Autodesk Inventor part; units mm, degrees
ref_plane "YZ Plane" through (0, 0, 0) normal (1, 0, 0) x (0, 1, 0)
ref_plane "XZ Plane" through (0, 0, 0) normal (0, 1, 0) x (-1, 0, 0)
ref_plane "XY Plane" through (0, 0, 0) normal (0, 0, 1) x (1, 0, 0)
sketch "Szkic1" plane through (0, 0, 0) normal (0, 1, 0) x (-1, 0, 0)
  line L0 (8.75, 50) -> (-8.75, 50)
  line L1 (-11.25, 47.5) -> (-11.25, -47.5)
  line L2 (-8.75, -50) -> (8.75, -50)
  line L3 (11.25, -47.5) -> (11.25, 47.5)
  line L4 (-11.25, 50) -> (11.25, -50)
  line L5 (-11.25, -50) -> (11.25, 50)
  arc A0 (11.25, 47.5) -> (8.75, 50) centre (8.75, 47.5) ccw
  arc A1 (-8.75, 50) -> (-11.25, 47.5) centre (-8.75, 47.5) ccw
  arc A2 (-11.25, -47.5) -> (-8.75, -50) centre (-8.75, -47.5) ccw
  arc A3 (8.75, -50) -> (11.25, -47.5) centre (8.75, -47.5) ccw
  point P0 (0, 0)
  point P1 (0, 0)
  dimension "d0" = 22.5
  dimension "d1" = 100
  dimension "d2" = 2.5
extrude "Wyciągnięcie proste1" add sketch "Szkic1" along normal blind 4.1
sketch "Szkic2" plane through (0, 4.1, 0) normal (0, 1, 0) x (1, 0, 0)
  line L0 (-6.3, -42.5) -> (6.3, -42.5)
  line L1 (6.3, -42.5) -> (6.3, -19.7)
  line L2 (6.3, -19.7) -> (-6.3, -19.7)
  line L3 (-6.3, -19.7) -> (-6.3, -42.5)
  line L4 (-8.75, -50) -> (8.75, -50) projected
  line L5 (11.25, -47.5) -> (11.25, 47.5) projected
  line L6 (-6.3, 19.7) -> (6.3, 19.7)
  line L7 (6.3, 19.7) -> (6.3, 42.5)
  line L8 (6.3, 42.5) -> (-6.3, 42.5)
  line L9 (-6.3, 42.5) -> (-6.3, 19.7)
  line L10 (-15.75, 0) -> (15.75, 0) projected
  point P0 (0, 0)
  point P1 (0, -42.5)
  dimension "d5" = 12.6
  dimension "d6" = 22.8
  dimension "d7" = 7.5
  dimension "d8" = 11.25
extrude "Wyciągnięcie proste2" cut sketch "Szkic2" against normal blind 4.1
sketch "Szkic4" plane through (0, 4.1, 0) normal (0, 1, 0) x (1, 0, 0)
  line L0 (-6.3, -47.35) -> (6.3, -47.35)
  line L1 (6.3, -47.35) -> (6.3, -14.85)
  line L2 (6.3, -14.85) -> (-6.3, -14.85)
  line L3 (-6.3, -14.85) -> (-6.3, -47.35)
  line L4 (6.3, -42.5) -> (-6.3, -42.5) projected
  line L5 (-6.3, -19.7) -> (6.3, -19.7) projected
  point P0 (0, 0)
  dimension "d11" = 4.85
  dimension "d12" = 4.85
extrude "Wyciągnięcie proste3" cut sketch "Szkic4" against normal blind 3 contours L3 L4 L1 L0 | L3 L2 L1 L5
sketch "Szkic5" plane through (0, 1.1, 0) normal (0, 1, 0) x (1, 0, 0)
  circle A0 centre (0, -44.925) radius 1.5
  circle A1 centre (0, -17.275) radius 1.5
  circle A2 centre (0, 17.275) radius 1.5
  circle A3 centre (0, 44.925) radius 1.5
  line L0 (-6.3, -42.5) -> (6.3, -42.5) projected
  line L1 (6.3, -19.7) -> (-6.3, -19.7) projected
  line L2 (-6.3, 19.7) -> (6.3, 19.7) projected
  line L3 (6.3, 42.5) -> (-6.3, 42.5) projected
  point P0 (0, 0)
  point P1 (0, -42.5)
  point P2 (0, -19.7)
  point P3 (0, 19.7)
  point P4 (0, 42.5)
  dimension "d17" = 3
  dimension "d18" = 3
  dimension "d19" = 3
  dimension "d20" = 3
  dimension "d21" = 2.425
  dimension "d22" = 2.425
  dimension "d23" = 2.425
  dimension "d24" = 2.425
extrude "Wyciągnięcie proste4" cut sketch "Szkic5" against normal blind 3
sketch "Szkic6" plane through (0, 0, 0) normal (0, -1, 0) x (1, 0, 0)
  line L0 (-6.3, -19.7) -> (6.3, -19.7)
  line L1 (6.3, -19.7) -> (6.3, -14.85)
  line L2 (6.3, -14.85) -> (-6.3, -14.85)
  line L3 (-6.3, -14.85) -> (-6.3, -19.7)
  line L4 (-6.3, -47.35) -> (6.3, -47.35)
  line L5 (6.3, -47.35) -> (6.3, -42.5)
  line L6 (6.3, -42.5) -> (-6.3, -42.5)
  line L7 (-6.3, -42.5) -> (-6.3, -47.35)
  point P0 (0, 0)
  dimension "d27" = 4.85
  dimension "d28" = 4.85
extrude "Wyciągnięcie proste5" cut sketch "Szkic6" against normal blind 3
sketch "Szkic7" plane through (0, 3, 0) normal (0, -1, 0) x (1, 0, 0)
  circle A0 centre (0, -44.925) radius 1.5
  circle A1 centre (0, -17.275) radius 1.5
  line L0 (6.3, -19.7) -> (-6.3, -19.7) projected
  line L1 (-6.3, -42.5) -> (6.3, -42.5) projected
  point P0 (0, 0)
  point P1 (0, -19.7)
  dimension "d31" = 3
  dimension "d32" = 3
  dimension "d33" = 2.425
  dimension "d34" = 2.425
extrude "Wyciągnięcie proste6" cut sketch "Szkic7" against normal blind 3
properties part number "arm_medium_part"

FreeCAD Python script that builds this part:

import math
import FreeCAD as App
import Part
import Sketcher

V = App.Vector

doc = App.newDocument("Part")
params = doc.addObject("Spreadsheet::Sheet", "Params")
for row, (alias, value) in enumerate([
    ("sketch1_radius", "2.5 mm"),
    ("sketch1_height", "95 mm"),
    ("pad1_length", "4.1 mm"),
    ("sketch2_width", "12.6 mm"),
    ("sketch2_height", "22.8 mm"),
    ("pocket1_length", "4.1 mm"),
    ("sketch3_height", "4.85 mm"),
    ("sketch3_width", "12.6 mm"),
    ("pocket2_length", "3 mm"),
    ("sketch4_diameter", "3 mm"),
    ("pocket3_length", "3 mm"),
    ("sketch5_height", "4.85 mm"),
    ("sketch5_width", "12.6 mm"),
    ("pocket4_length", "3 mm"),
    ("sketch6_diameter", "3 mm"),
    ("pocket5_length", "3 mm"),
], start=1):
    params.set(f"A{row}", alias)
    params.set(f"B{row}", "=" + value)
    params.setAlias(f"B{row}", alias)

body = doc.addObject("PartDesign::Body", "Body")

# Sketch on XZ plane
sketch1 = body.newObject("Sketcher::SketchObject", "Sketch")
sketch1.AttachmentSupport = (doc.getObject("XZ_Plane"), [""])
sketch1.MapMode = "FlatFace"
sketch1.addGeometry([
    Part.LineSegment(V(-8.75, 50, 0), V(8.75, 50, 0)),  # 0
    Part.ArcOfCircle(Part.Circle(V(8.75, 47.5, 0), V(0, 0, 1), 2.5), math.radians(0), math.radians(90)),  # 1
    Part.LineSegment(V(11.25, 47.5, 0), V(11.25, -47.5, 0)),  # 2
    Part.ArcOfCircle(Part.Circle(V(8.75, -47.5, 0), V(0, 0, 1), 2.5), math.radians(-90), math.radians(0)),  # 3
    Part.LineSegment(V(8.75, -50, 0), V(-8.75, -50, 0)),  # 4
    Part.ArcOfCircle(Part.Circle(V(-8.75, -47.5, 0), V(0, 0, 1), 2.5), math.radians(180), math.radians(270)),  # 5
    Part.LineSegment(V(-11.25, -47.5, 0), V(-11.25, 47.5, 0)),  # 6
    Part.ArcOfCircle(Part.Circle(V(-8.75, 47.5, 0), V(0, 0, 1), 2.5), math.radians(90), math.radians(180)),  # 7
], False)
sketch1.addConstraint([
    Sketcher.Constraint("Tangent", 0, 2, 1, 2),
    Sketcher.Constraint("Tangent", 1, 1, 2, 1),
    Sketcher.Constraint("Tangent", 2, 2, 3, 2),
    Sketcher.Constraint("Tangent", 3, 1, 4, 1),
    Sketcher.Constraint("Tangent", 4, 2, 5, 2),
    Sketcher.Constraint("Tangent", 5, 1, 6, 1),
    Sketcher.Constraint("Tangent", 6, 2, 7, 2),
    Sketcher.Constraint("Tangent", 7, 1, 0, 1),
    Sketcher.Constraint("Horizontal", 0),
    Sketcher.Constraint("Vertical", 2),
    Sketcher.Constraint("Horizontal", 4),
    Sketcher.Constraint("Vertical", 6),
    Sketcher.Constraint("Equal", 1, 3),
    Sketcher.Constraint("Equal", 3, 5),
    Sketcher.Constraint("Equal", 5, 7),
    Sketcher.Constraint("Symmetric", 1, 3, 5, 3, -1, 1),
    Sketcher.Constraint("Radius", 1, 2.5),
    Sketcher.Constraint("DistanceX", 5, 1, 2, 2, 22.5),
    Sketcher.Constraint("DistanceY", 2, 2, 2, 1, 95.0),
])
sketch1.setExpression("Constraints[16]", "Params.sketch1_radius")
sketch1.setExpression("Constraints[18]", "Params.sketch1_height")
pad1 = body.newObject("PartDesign::Pad", "Pad")
pad1.Profile = sketch1
pad1.setExpression("Length", "Params.pad1_length")
pad1.Reversed = True

# Sketch on XZ plane
sketch2 = body.newObject("Sketcher::SketchObject", "Sketch001")
sketch2.AttachmentSupport = (doc.getObject("XZ_Plane"), [""])
sketch2.MapMode = "FlatFace"
sketch2.AttachmentOffset = App.Placement(V(0, 0, -4.1), App.Rotation())
sketch2.addGeometry([
    Part.LineSegment(V(-6.3, 19.7, 0), V(-6.3, 42.5, 0)),  # 0
    Part.LineSegment(V(-6.3, 42.5, 0), V(6.3, 42.5, 0)),  # 1
    Part.LineSegment(V(6.3, 42.5, 0), V(6.3, 19.7, 0)),  # 2
    Part.LineSegment(V(6.3, 19.7, 0), V(-6.3, 19.7, 0)),  # 3
    Part.LineSegment(V(-6.3, -42.5, 0), V(-6.3, -19.7, 0)),  # 4
    Part.LineSegment(V(-6.3, -19.7, 0), V(6.3, -19.7, 0)),  # 5
    Part.LineSegment(V(6.3, -19.7, 0), V(6.3, -42.5, 0)),  # 6
    Part.LineSegment(V(6.3, -42.5, 0), V(-6.3, -42.5, 0)),  # 7
], False)
sketch2.addConstraint([
    Sketcher.Constraint("Coincident", 0, 2, 1, 1),
    Sketcher.Constraint("Coincident", 1, 2, 2, 1),
    Sketcher.Constraint("Coincident", 2, 2, 3, 1),
    Sketcher.Constraint("Coincident", 3, 2, 0, 1),
    Sketcher.Constraint("Coincident", 4, 2, 5, 1),
    Sketcher.Constraint("Coincident", 5, 2, 6, 1),
    Sketcher.Constraint("Coincident", 6, 2, 7, 1),
    Sketcher.Constraint("Coincident", 7, 2, 4, 1),
    Sketcher.Constraint("Vertical", 0),
    Sketcher.Constraint("Horizontal", 1),
    Sketcher.Constraint("Vertical", 2),
    Sketcher.Constraint("Horizontal", 3),
    Sketcher.Constraint("Vertical", 4),
    Sketcher.Constraint("Horizontal", 5),
    Sketcher.Constraint("Vertical", 6),
    Sketcher.Constraint("Horizontal", 7),
    Sketcher.Constraint("Symmetric", 2, 2, 4, 2, -1, 1),
    Sketcher.Constraint("Symmetric", 0, 2, 6, 2, -1, 1),
    Sketcher.Constraint("Vertical", 3, 2, 4, 2),
    Sketcher.Constraint("DistanceX", 1, 1, 1, 2, 12.6),
    Sketcher.Constraint("DistanceY", 0, 1, 0, 2, 22.8),
    Sketcher.Constraint("DistanceY", 6, 2, 1, 2, 85.0),
])
sketch2.setExpression("Constraints[19]", "Params.sketch2_width")
sketch2.setExpression("Constraints[20]", "Params.sketch2_height")
pocket1 = body.newObject("PartDesign::Pocket", "Pocket")
pocket1.Profile = sketch2
pocket1.setExpression("Length", "Params.pocket1_length")
pocket1.Reversed = True

# Sketch on XZ plane
sketch3 = body.newObject("Sketcher::SketchObject", "Sketch002")
sketch3.AttachmentSupport = (doc.getObject("XZ_Plane"), [""])
sketch3.MapMode = "FlatFace"
sketch3.AttachmentOffset = App.Placement(V(0, 0, -4.1), App.Rotation())
sketch3.addGeometry([
    Part.LineSegment(V(-6.3, 42.5, 0), V(-6.3, 47.35, 0)),  # 0
    Part.LineSegment(V(-6.3, 47.35, 0), V(6.3, 47.35, 0)),  # 1
    Part.LineSegment(V(6.3, 47.35, 0), V(6.3, 42.5, 0)),  # 2
    Part.LineSegment(V(6.3, 42.5, 0), V(-6.3, 42.5, 0)),  # 3
    Part.LineSegment(V(-6.3, 14.85, 0), V(-6.3, 19.7, 0)),  # 4
    Part.LineSegment(V(-6.3, 19.7, 0), V(6.3, 19.7, 0)),  # 5
    Part.LineSegment(V(6.3, 19.7, 0), V(6.3, 14.85, 0)),  # 6
    Part.LineSegment(V(6.3, 14.85, 0), V(-6.3, 14.85, 0)),  # 7
], False)
sketch3.addConstraint([
    Sketcher.Constraint("Coincident", 0, 2, 1, 1),
    Sketcher.Constraint("Coincident", 1, 2, 2, 1),
    Sketcher.Constraint("Coincident", 2, 2, 3, 1),
    Sketcher.Constraint("Coincident", 3, 2, 0, 1),
    Sketcher.Constraint("Coincident", 4, 2, 5, 1),
    Sketcher.Constraint("Coincident", 5, 2, 6, 1),
    Sketcher.Constraint("Coincident", 6, 2, 7, 1),
    Sketcher.Constraint("Coincident", 7, 2, 4, 1),
    Sketcher.Constraint("Vertical", 0),
    Sketcher.Constraint("Horizontal", 1),
    Sketcher.Constraint("Vertical", 2),
    Sketcher.Constraint("Horizontal", 3),
    Sketcher.Constraint("Vertical", 4),
    Sketcher.Constraint("Horizontal", 5),
    Sketcher.Constraint("Vertical", 6),
    Sketcher.Constraint("Horizontal", 7),
    Sketcher.Constraint("Vertical", 3, 2, 4, 2),
    Sketcher.Constraint("Vertical", 2, 2, 5, 2),
    Sketcher.Constraint("Equal", 2, 4),
    Sketcher.Constraint("DistanceY", 0, 1, 0, 2, 4.85),
    Sketcher.Constraint("DistanceX", 1, 1, 1, 2, 12.6),
    Sketcher.Constraint("DistanceX", 0, 2, -1, 1, 6.3),
    Sketcher.Constraint("DistanceY", -1, 1, 2, 2, 42.5),
    Sketcher.Constraint("DistanceY", -1, 1, 4, 2, 19.7),
])
sketch3.setExpression("Constraints[19]", "Params.sketch3_height")
sketch3.setExpression("Constraints[20]", "Params.sketch3_width")
pocket2 = body.newObject("PartDesign::Pocket", "Pocket001")
pocket2.Profile = sketch3
pocket2.setExpression("Length", "Params.pocket2_length")
pocket2.Reversed = True

# Sketch on XZ plane
sketch4 = body.newObject("Sketcher::SketchObject", "Sketch003")
sketch4.AttachmentSupport = (doc.getObject("XZ_Plane"), [""])
sketch4.MapMode = "FlatFace"
sketch4.AttachmentOffset = App.Placement(V(0, 0, -1.1), App.Rotation())
sketch4.addGeometry([
    Part.Circle(V(0, 44.925, 0), V(0, 0, 1), 1.5),
    Part.Circle(V(0, 17.275, 0), V(0, 0, 1), 1.5),
    Part.Circle(V(0, -17.275, 0), V(0, 0, 1), 1.5),
    Part.Circle(V(0, -44.925, 0), V(0, 0, 1), 1.5),
], False)
sketch4.addConstraint([
    Sketcher.Constraint("Equal", 0, 1),
    Sketcher.Constraint("Equal", 1, 2),
    Sketcher.Constraint("Equal", 2, 3),
    Sketcher.Constraint("Symmetric", 1, 3, 2, 3, -1, 1),
    Sketcher.Constraint("Symmetric", 0, 3, 3, 3, -1, 1),
    Sketcher.Constraint("PointOnObject", 0, 3, -2),
    Sketcher.Constraint("PointOnObject", 1, 3, -2),
    Sketcher.Constraint("Diameter", 0, 3.0),
    Sketcher.Constraint("DistanceY", 2, 3, 0, 3, 62.2),
    Sketcher.Constraint("DistanceY", 1, 3, 0, 3, 27.65),
])
sketch4.setExpression("Constraints[7]", "Params.sketch4_diameter")
pocket3 = body.newObject("PartDesign::Pocket", "Pocket002")
pocket3.Profile = sketch4
pocket3.setExpression("Length", "Params.pocket3_length")
pocket3.Reversed = True

# Sketch on XZ plane
sketch5 = body.newObject("Sketcher::SketchObject", "Sketch004")
sketch5.AttachmentSupport = (doc.getObject("XZ_Plane"), [""])
sketch5.MapMode = "FlatFace"
sketch5.addGeometry([
    Part.LineSegment(V(-6.3, -14.85, 0), V(-6.3, -19.7, 0)),  # 0
    Part.LineSegment(V(-6.3, -19.7, 0), V(6.3, -19.7, 0)),  # 1
    Part.LineSegment(V(6.3, -19.7, 0), V(6.3, -14.85, 0)),  # 2
    Part.LineSegment(V(6.3, -14.85, 0), V(-6.3, -14.85, 0)),  # 3
    Part.LineSegment(V(-6.3, -42.5, 0), V(-6.3, -47.35, 0)),  # 4
    Part.LineSegment(V(-6.3, -47.35, 0), V(6.3, -47.35, 0)),  # 5
    Part.LineSegment(V(6.3, -47.35, 0), V(6.3, -42.5, 0)),  # 6
    Part.LineSegment(V(6.3, -42.5, 0), V(-6.3, -42.5, 0)),  # 7
], False)
sketch5.addConstraint([
    Sketcher.Constraint("Coincident", 0, 2, 1, 1),
    Sketcher.Constraint("Coincident", 1, 2, 2, 1),
    Sketcher.Constraint("Coincident", 2, 2, 3, 1),
    Sketcher.Constraint("Coincident", 3, 2, 0, 1),
    Sketcher.Constraint("Coincident", 4, 2, 5, 1),
    Sketcher.Constraint("Coincident", 5, 2, 6, 1),
    Sketcher.Constraint("Coincident", 6, 2, 7, 1),
    Sketcher.Constraint("Coincident", 7, 2, 4, 1),
    Sketcher.Constraint("Vertical", 0),
    Sketcher.Constraint("Horizontal", 1),
    Sketcher.Constraint("Vertical", 2),
    Sketcher.Constraint("Horizontal", 3),
    Sketcher.Constraint("Vertical", 4),
    Sketcher.Constraint("Horizontal", 5),
    Sketcher.Constraint("Vertical", 6),
    Sketcher.Constraint("Horizontal", 7),
    Sketcher.Constraint("Vertical", 3, 2, 4, 2),
    Sketcher.Constraint("Vertical", 2, 2, 5, 2),
    Sketcher.Constraint("Equal", 2, 4),
    Sketcher.Constraint("DistanceY", 0, 2, 0, 1, 4.85),
    Sketcher.Constraint("DistanceX", 1, 1, 1, 2, 12.6),
    Sketcher.Constraint("DistanceX", 0, 2, -1, 1, 6.3),
    Sketcher.Constraint("DistanceY", 0, 2, -1, 1, 19.7),
    Sketcher.Constraint("DistanceY", 6, 2, -1, 1, 42.5),
])
sketch5.setExpression("Constraints[19]", "Params.sketch5_height")
sketch5.setExpression("Constraints[20]", "Params.sketch5_width")
pocket4 = body.newObject("PartDesign::Pocket", "Pocket003")
pocket4.Profile = sketch5
pocket4.setExpression("Length", "Params.pocket4_length")

# Sketch on XZ plane
sketch6 = body.newObject("Sketcher::SketchObject", "Sketch005")
sketch6.AttachmentSupport = (doc.getObject("XZ_Plane"), [""])
sketch6.MapMode = "FlatFace"
sketch6.AttachmentOffset = App.Placement(V(0, 0, -3), App.Rotation())
sketch6.addGeometry([
    Part.Circle(V(0, -44.925, 0), V(0, 0, 1), 1.5),
    Part.Circle(V(0, -17.275, 0), V(0, 0, 1), 1.5),
], False)
sketch6.addConstraint([
    Sketcher.Constraint("Equal", 0, 1),
    Sketcher.Constraint("PointOnObject", 0, 3, -2),
    Sketcher.Constraint("PointOnObject", 1, 3, -2),
    Sketcher.Constraint("Diameter", 0, 3.0),
    Sketcher.Constraint("DistanceY", 0, 3, 1, 3, 27.65),
    Sketcher.Constraint("DistanceY", 0, 3, -1, 1, 44.925),
])
sketch6.setExpression("Constraints[3]", "Params.sketch6_diameter")
pocket5 = body.newObject("PartDesign::Pocket", "Pocket004")
pocket5.Profile = sketch6
pocket5.setExpression("Length", "Params.pocket5_length")

doc.recompute()
